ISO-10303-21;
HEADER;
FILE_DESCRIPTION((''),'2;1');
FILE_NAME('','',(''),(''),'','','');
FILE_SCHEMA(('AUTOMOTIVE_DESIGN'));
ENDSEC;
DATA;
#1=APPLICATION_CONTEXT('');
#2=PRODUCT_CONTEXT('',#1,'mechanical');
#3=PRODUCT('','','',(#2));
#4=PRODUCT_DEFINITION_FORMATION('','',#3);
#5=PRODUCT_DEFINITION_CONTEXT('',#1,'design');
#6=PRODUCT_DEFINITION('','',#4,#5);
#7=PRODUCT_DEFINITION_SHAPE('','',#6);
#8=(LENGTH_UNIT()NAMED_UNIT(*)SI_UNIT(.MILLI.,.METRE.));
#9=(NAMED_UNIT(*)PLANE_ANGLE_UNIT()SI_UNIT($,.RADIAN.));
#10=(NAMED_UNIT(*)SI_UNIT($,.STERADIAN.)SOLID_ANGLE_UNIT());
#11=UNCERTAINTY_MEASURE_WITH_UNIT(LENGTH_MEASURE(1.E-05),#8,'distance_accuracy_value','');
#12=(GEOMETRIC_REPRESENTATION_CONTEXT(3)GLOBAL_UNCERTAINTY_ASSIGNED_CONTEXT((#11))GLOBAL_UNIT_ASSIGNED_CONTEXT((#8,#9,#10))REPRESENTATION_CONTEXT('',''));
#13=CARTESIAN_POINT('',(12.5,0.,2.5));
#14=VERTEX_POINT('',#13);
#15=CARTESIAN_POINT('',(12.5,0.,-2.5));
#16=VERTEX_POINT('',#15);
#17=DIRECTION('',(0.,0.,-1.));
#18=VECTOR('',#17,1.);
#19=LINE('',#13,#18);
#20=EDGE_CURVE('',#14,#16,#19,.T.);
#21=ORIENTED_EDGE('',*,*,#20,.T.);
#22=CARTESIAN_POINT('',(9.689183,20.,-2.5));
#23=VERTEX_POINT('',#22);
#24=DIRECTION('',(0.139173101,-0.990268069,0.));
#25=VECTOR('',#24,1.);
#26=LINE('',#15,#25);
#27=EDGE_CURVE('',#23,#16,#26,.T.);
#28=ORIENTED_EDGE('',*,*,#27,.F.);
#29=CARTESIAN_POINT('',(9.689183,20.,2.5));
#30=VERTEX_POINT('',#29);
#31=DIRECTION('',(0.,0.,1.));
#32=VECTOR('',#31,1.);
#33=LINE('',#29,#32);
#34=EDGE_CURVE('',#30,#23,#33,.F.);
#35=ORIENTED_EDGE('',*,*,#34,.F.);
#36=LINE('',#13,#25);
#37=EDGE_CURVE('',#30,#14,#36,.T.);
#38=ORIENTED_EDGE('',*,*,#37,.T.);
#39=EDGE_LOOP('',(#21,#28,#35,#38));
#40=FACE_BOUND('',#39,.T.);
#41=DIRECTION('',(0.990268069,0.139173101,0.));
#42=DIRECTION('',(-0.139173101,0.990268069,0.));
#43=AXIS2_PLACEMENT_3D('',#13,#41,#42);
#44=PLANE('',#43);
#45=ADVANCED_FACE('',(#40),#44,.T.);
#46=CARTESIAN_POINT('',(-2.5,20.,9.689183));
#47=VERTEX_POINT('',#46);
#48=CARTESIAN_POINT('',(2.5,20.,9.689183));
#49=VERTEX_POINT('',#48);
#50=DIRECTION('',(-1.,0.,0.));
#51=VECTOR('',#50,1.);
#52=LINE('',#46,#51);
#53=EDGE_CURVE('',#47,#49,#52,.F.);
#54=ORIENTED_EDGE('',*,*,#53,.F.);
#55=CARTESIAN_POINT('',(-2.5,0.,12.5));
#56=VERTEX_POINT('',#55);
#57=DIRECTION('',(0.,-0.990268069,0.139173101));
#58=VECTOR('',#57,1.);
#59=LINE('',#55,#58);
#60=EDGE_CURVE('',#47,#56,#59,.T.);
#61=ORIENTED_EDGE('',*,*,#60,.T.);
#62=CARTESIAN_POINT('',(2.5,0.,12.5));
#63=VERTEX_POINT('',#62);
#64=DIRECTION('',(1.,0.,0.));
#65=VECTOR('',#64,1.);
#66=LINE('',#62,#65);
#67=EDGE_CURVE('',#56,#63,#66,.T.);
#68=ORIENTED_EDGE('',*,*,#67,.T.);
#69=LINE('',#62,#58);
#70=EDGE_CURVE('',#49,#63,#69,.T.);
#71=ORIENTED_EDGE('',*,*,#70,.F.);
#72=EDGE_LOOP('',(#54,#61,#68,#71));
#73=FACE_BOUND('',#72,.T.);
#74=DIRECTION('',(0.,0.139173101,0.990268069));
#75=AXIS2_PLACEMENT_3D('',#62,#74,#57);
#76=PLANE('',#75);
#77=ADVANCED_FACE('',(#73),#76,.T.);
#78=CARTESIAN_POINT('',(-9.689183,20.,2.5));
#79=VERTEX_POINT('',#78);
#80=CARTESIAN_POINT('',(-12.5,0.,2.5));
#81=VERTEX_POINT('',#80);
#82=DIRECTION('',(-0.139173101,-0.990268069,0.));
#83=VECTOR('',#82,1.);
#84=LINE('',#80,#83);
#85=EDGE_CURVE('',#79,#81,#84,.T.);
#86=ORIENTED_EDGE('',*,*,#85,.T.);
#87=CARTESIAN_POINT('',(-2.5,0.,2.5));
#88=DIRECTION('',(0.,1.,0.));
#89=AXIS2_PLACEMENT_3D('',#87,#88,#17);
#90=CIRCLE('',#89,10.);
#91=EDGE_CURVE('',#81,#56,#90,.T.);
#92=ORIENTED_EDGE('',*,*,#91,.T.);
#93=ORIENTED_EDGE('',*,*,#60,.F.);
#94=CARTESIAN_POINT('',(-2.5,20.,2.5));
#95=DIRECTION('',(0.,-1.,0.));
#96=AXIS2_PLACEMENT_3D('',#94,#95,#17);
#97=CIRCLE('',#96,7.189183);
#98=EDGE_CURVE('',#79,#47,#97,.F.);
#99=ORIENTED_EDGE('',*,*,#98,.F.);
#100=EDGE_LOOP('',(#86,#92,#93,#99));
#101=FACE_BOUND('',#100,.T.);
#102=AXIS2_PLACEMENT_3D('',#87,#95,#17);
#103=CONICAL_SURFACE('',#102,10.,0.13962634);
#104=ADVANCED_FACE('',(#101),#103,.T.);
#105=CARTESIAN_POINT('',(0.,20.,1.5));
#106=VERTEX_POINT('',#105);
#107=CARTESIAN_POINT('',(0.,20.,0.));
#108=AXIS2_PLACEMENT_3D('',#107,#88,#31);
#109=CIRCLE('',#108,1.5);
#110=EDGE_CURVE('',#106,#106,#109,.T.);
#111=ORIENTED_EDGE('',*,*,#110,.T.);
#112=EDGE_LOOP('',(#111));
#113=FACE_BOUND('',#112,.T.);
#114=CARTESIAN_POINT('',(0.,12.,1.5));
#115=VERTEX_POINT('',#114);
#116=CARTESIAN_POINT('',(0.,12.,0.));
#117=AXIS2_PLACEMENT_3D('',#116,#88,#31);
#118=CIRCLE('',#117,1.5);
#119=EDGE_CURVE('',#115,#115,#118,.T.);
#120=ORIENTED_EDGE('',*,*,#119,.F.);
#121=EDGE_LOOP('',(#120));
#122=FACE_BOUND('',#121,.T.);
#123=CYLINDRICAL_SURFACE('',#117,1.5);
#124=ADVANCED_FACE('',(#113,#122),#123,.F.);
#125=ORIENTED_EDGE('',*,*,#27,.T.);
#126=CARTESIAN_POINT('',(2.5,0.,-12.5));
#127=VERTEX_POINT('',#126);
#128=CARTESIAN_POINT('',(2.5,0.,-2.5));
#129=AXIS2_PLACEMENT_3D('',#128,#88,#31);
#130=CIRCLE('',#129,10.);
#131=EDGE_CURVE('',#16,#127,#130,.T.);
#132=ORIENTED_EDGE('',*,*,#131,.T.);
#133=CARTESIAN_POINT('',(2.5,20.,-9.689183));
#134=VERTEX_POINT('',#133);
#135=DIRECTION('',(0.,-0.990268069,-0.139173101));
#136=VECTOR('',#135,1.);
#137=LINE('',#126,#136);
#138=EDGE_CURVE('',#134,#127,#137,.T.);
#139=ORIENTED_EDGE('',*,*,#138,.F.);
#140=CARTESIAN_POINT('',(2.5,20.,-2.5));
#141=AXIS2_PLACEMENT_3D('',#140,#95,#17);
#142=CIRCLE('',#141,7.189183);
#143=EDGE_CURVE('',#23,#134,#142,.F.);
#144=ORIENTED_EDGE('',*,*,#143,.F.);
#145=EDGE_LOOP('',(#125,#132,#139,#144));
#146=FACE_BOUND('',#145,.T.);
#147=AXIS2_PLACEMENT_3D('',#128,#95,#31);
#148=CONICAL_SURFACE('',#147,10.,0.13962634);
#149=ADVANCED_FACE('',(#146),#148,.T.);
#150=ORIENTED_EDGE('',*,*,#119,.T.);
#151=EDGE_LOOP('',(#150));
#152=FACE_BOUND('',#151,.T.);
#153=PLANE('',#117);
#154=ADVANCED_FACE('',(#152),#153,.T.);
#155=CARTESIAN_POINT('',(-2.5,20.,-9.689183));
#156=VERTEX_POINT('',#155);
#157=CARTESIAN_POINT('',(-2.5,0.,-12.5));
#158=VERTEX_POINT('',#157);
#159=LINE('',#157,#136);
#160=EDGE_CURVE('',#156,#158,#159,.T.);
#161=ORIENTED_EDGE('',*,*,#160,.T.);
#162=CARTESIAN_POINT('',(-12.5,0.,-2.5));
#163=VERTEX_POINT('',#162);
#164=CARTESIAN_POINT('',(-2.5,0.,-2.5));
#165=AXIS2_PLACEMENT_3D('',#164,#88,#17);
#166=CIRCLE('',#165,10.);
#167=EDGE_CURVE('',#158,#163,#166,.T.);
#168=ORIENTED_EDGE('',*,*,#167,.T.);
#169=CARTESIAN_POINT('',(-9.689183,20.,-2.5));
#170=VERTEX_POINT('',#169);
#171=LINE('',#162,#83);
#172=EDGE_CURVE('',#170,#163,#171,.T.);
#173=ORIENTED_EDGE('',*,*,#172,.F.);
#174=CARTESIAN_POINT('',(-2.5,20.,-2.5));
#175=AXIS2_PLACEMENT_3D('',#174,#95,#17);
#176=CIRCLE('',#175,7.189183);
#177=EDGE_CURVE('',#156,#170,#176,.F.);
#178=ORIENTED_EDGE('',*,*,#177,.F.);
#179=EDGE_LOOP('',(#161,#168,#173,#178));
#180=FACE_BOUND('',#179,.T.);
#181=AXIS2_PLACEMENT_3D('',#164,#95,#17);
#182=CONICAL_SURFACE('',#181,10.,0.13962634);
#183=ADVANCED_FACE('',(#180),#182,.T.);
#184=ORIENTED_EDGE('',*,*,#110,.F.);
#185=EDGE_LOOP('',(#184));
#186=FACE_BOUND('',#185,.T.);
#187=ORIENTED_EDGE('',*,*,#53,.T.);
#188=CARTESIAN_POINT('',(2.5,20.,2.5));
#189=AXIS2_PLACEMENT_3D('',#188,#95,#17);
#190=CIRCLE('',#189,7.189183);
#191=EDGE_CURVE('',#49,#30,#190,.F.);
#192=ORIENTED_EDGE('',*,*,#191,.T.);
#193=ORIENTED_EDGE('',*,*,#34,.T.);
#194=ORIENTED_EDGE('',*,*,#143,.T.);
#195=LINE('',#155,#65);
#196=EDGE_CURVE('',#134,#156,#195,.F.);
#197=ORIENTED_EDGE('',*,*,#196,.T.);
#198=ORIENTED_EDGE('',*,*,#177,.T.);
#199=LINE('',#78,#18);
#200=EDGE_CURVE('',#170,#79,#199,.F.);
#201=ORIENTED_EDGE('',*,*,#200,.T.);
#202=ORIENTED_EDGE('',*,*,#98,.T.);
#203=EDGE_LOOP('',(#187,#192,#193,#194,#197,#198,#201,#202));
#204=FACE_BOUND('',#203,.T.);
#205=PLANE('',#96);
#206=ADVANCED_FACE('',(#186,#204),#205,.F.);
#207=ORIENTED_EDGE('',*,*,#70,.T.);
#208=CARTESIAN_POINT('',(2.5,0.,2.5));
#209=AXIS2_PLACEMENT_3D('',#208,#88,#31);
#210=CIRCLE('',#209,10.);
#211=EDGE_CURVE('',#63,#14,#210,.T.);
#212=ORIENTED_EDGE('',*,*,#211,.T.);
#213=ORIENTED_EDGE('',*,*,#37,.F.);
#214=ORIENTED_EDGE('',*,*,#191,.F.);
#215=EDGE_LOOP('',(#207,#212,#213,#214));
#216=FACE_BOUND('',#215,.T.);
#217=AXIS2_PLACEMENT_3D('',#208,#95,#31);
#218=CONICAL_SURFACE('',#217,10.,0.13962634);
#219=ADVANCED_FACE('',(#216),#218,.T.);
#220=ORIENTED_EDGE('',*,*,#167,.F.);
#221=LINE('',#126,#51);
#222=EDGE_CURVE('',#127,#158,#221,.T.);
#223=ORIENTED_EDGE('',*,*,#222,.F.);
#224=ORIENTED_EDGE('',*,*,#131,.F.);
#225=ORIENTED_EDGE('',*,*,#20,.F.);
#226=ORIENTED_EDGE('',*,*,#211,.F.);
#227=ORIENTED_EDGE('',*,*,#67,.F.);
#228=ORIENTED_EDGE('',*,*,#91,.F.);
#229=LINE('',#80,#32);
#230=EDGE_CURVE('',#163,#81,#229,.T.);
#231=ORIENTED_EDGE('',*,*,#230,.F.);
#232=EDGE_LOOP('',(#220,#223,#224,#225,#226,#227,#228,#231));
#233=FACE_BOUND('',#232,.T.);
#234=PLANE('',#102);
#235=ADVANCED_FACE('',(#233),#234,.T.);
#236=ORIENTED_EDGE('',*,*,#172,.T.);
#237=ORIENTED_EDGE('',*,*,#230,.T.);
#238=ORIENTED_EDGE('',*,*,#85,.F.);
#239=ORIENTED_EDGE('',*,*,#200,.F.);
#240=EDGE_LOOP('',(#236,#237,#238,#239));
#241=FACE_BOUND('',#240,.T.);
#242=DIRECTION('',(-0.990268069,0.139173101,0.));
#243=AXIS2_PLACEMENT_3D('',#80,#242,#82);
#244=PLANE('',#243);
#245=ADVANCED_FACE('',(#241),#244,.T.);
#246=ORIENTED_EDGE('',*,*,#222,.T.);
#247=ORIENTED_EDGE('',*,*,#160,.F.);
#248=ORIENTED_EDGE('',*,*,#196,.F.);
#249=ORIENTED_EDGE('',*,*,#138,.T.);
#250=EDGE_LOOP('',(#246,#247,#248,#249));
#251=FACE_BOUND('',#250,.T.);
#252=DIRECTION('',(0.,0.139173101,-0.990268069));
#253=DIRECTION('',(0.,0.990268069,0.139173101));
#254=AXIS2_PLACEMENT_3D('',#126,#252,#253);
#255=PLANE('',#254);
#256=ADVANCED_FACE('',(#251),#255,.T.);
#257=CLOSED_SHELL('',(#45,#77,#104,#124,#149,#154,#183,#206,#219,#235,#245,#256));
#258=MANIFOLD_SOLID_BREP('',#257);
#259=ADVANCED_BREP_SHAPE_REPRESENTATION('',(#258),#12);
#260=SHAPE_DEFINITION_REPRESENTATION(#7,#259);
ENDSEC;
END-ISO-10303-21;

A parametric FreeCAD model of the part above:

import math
import FreeCAD as App
import Part
import Sketcher
from FreeCAD import Vector

doc = App.newDocument("Part")
body = doc.addObject("PartDesign::Body", "Body")

sketch1 = body.newObject("Sketcher::SketchObject", "Sketch")
sketch1.AttachmentSupport = (doc.getObject("XZ_Plane"), [""])
sketch1.MapMode = "FlatFace"
sketch1.addGeometry([
    Part.ArcOfCircle(Part.Circle(Vector(2, 2, 0), Vector(0, 0, 1), 10), math.radians(0), math.radians(90)),
    Part.LineSegment(Vector(12, 2, 0), Vector(12, -2, 0)),
    Part.ArcOfCircle(Part.Circle(Vector(2, -2, 0), Vector(0, 0, 1), 10), math.radians(-90), math.radians(0)),
    Part.LineSegment(Vector(2, -12, 0), Vector(-2, -12, 0)),
    Part.ArcOfCircle(Part.Circle(Vector(-2, -2, 0), Vector(0, 0, 1), 10), math.radians(180), math.radians(270)),
    Part.LineSegment(Vector(-12, -2, 0), Vector(-12, 2, 0)),
    Part.ArcOfCircle(Part.Circle(Vector(-2, 2, 0), Vector(0, 0, 1), 10), math.radians(90), math.radians(180)),
    Part.LineSegment(Vector(-2, 12, 0), Vector(2, 12, 0)),
], False)
sketch1.addConstraint([
    Sketcher.Constraint("Tangent", 0, 1, 1, 1),
    Sketcher.Constraint("Tangent", 1, 2, 2, 2),
    Sketcher.Constraint("Tangent", 2, 1, 3, 1),
    Sketcher.Constraint("Tangent", 3, 2, 4, 2),
    Sketcher.Constraint("Tangent", 4, 1, 5, 1),
    Sketcher.Constraint("Tangent", 5, 2, 6, 2),
    Sketcher.Constraint("Tangent", 6, 1, 7, 1),
    Sketcher.Constraint("Tangent", 7, 2, 0, 2),
    Sketcher.Constraint("Vertical", 1),
    Sketcher.Constraint("Horizontal", 3),
    Sketcher.Constraint("Vertical", 5),
    Sketcher.Constraint("Horizontal", 7),
    Sketcher.Constraint("Equal", 0, 2),
    Sketcher.Constraint("Equal", 2, 4),
    Sketcher.Constraint("Equal", 4, 6),
    Sketcher.Constraint("Symmetric", 0, 3, 4, 3, -1, 1),
    Sketcher.Constraint("Equal", 7, 1),
    Sketcher.Constraint("Radius", 0, 10.0),
    Sketcher.Constraint("DistanceX", 3, 2, 3, 1, 5.0),
])
pad1 = body.newObject("PartDesign::Pad", "Pad")
pad1.Profile = sketch1
pad1.Length = 20
pad1.Reversed = True
pad1.TaperAngle = -8

sketch2 = body.newObject("Sketcher::SketchObject", "Sketch001")
sketch2.AttachmentSupport = (doc.getObject("XZ_Plane"), [""])
sketch2.MapMode = "FlatFace"
sketch2.AttachmentOffset = App.Placement(Vector(0, 0, -20), App.Rotation())
sketch2.addGeometry(Part.Circle(Vector(0, 0, 0), Vector(0, 0, 1), 1.5), False)
sketch2.addConstraint([
    Sketcher.Constraint("Coincident", 0, 3, -1, 1),
    Sketcher.Constraint("Diameter", 0, 3.0),
])
pocket1 = body.newObject("PartDesign::Pocket", "Pocket")
pocket1.Profile = sketch2
pocket1.Length = 8
pocket1.Reversed = True

doc.recompute()
